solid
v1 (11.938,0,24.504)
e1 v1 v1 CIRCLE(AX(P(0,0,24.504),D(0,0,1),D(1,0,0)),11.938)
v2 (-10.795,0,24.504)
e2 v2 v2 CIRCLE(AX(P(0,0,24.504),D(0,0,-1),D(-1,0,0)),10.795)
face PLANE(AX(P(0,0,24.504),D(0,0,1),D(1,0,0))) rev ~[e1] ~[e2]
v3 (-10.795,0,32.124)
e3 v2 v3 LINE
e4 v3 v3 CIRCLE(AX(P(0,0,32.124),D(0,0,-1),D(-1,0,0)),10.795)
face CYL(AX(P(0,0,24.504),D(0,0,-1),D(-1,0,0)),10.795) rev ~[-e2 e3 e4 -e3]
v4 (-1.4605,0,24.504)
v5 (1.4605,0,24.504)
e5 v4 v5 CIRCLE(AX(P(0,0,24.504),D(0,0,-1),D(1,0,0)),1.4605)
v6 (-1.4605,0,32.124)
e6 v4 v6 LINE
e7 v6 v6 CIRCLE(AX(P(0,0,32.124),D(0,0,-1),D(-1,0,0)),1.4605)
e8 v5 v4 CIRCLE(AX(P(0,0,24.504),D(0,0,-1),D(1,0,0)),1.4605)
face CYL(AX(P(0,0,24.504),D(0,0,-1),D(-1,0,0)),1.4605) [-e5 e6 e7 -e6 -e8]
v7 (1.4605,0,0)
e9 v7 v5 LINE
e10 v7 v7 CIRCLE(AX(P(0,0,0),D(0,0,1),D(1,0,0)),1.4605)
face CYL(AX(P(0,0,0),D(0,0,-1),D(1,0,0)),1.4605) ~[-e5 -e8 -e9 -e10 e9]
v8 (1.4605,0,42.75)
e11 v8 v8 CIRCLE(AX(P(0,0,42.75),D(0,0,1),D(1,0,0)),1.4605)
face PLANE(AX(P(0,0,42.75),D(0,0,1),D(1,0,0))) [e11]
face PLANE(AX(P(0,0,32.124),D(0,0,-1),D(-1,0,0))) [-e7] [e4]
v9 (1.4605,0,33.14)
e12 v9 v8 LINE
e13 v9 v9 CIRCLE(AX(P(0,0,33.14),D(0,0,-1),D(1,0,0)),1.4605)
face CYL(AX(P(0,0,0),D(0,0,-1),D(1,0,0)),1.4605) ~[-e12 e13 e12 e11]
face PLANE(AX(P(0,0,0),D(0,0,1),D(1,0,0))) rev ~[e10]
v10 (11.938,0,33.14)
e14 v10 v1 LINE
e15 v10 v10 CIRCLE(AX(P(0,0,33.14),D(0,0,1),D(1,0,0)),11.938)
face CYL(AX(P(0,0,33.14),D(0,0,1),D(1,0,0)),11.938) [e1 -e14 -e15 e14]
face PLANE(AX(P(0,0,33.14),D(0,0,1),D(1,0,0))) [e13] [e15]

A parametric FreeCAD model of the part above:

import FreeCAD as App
import Part
import Sketcher
Q = App.Units.Quantity

doc = App.newDocument("Part")
params = doc.addObject("Spreadsheet::Sheet", "Params")
for row, (alias, value) in enumerate([
    ("sketch1_diameter", "0.115 in"),
    ("pad1_length", "42.75 mm"),
    ("sketch2_diameter", "0.94 in"),
    ("pad2_length", "0.34 in"),
    ("sketch3_diameter", "0.85 in"),
    ("sketch3_diameter2", "0.115 in"),
    ("pocket1_length", "0.3 in"),
], start=1):
    params.set(f"A{row}", alias)
    params.set(f"B{row}", "=" + value)
    params.setAlias(f"B{row}", alias)

body = doc.addObject("PartDesign::Body", "Body")

sketch1 = body.newObject("Sketcher::SketchObject", "Sketch")
sketch1.AttachmentSupport = (doc.getObject("XY_Plane"), [""])
sketch1.MapMode = "FlatFace"
sketch1.addGeometry(Part.Circle(App.Vector(0, 0, 0), App.Vector(0, 0, 1), 1.5), False)
sketch1.addConstraint(Sketcher.Constraint("Coincident", 0, 3, -1, 1))
sketch1.addConstraint(Sketcher.Constraint("Diameter", 0, Q("0.115 in")))
sketch1.setExpression("Constraints[1]", "Params.sketch1_diameter")
pad1 = body.newObject("PartDesign::Pad", "Pad")
pad1.Profile = sketch1
pad1.setExpression("Length", "Params.pad1_length")

sketch2 = body.newObject("Sketcher::SketchObject", "Sketch001")
sketch2.AttachmentSupport = (doc.getObject("XY_Plane"), [""])
sketch2.MapMode = "FlatFace"
sketch2.AttachmentOffset = App.Placement(App.Vector(0, 0, 33.14), App.Rotation())
sketch2.addGeometry(Part.Circle(App.Vector(0, 0, 0), App.Vector(0, 0, 1), 12), False)
sketch2.addConstraint(Sketcher.Constraint("Coincident", 0, 3, -1, 1))
sketch2.addConstraint(Sketcher.Constraint("Diameter", 0, Q("0.94 in")))
sketch2.setExpression("Constraints[1]", "Params.sketch2_diameter")
pad2 = body.newObject("PartDesign::Pad", "Pad001")
pad2.Profile = sketch2
pad2.setExpression("Length", "Params.pad2_length")
pad2.Reversed = True

sketch3 = body.newObject("Sketcher::SketchObject", "Sketch002")
sketch3.AttachmentSupport = (doc.getObject("XY_Plane"), [""])
sketch3.MapMode = "FlatFace"
sketch3.AttachmentOffset = App.Placement(App.Vector(0, 0, 24.504), App.Rotation())
sketch3.addGeometry(Part.Circle(App.Vector(0, 0, 0), App.Vector(0, 0, 1), 10.8), False)
sketch3.addGeometry(Part.Circle(App.Vector(0, 0, 0), App.Vector(0, 0, 1), 1.5), False)
sketch3.addConstraint(Sketcher.Constraint("Coincident", 0, 3, -1, 1))
sketch3.addConstraint(Sketcher.Constraint("Coincident", 1, 3, -1, 1))
sketch3.addConstraint(Sketcher.Constraint("Diameter", 0, Q("0.85 in")))
sketch3.addConstraint(Sketcher.Constraint("Diameter", 1, Q("0.115 in")))
sketch3.setExpression("Constraints[2]", "Params.sketch3_diameter")
sketch3.setExpression("Constraints[3]", "Params.sketch3_diameter2")
pocket1 = body.newObject("PartDesign::Pocket", "Pocket")
pocket1.Profile = sketch3
pocket1.setExpression("Length", "Params.pocket1_length")
pocket1.Reversed = True

doc.recompute()
